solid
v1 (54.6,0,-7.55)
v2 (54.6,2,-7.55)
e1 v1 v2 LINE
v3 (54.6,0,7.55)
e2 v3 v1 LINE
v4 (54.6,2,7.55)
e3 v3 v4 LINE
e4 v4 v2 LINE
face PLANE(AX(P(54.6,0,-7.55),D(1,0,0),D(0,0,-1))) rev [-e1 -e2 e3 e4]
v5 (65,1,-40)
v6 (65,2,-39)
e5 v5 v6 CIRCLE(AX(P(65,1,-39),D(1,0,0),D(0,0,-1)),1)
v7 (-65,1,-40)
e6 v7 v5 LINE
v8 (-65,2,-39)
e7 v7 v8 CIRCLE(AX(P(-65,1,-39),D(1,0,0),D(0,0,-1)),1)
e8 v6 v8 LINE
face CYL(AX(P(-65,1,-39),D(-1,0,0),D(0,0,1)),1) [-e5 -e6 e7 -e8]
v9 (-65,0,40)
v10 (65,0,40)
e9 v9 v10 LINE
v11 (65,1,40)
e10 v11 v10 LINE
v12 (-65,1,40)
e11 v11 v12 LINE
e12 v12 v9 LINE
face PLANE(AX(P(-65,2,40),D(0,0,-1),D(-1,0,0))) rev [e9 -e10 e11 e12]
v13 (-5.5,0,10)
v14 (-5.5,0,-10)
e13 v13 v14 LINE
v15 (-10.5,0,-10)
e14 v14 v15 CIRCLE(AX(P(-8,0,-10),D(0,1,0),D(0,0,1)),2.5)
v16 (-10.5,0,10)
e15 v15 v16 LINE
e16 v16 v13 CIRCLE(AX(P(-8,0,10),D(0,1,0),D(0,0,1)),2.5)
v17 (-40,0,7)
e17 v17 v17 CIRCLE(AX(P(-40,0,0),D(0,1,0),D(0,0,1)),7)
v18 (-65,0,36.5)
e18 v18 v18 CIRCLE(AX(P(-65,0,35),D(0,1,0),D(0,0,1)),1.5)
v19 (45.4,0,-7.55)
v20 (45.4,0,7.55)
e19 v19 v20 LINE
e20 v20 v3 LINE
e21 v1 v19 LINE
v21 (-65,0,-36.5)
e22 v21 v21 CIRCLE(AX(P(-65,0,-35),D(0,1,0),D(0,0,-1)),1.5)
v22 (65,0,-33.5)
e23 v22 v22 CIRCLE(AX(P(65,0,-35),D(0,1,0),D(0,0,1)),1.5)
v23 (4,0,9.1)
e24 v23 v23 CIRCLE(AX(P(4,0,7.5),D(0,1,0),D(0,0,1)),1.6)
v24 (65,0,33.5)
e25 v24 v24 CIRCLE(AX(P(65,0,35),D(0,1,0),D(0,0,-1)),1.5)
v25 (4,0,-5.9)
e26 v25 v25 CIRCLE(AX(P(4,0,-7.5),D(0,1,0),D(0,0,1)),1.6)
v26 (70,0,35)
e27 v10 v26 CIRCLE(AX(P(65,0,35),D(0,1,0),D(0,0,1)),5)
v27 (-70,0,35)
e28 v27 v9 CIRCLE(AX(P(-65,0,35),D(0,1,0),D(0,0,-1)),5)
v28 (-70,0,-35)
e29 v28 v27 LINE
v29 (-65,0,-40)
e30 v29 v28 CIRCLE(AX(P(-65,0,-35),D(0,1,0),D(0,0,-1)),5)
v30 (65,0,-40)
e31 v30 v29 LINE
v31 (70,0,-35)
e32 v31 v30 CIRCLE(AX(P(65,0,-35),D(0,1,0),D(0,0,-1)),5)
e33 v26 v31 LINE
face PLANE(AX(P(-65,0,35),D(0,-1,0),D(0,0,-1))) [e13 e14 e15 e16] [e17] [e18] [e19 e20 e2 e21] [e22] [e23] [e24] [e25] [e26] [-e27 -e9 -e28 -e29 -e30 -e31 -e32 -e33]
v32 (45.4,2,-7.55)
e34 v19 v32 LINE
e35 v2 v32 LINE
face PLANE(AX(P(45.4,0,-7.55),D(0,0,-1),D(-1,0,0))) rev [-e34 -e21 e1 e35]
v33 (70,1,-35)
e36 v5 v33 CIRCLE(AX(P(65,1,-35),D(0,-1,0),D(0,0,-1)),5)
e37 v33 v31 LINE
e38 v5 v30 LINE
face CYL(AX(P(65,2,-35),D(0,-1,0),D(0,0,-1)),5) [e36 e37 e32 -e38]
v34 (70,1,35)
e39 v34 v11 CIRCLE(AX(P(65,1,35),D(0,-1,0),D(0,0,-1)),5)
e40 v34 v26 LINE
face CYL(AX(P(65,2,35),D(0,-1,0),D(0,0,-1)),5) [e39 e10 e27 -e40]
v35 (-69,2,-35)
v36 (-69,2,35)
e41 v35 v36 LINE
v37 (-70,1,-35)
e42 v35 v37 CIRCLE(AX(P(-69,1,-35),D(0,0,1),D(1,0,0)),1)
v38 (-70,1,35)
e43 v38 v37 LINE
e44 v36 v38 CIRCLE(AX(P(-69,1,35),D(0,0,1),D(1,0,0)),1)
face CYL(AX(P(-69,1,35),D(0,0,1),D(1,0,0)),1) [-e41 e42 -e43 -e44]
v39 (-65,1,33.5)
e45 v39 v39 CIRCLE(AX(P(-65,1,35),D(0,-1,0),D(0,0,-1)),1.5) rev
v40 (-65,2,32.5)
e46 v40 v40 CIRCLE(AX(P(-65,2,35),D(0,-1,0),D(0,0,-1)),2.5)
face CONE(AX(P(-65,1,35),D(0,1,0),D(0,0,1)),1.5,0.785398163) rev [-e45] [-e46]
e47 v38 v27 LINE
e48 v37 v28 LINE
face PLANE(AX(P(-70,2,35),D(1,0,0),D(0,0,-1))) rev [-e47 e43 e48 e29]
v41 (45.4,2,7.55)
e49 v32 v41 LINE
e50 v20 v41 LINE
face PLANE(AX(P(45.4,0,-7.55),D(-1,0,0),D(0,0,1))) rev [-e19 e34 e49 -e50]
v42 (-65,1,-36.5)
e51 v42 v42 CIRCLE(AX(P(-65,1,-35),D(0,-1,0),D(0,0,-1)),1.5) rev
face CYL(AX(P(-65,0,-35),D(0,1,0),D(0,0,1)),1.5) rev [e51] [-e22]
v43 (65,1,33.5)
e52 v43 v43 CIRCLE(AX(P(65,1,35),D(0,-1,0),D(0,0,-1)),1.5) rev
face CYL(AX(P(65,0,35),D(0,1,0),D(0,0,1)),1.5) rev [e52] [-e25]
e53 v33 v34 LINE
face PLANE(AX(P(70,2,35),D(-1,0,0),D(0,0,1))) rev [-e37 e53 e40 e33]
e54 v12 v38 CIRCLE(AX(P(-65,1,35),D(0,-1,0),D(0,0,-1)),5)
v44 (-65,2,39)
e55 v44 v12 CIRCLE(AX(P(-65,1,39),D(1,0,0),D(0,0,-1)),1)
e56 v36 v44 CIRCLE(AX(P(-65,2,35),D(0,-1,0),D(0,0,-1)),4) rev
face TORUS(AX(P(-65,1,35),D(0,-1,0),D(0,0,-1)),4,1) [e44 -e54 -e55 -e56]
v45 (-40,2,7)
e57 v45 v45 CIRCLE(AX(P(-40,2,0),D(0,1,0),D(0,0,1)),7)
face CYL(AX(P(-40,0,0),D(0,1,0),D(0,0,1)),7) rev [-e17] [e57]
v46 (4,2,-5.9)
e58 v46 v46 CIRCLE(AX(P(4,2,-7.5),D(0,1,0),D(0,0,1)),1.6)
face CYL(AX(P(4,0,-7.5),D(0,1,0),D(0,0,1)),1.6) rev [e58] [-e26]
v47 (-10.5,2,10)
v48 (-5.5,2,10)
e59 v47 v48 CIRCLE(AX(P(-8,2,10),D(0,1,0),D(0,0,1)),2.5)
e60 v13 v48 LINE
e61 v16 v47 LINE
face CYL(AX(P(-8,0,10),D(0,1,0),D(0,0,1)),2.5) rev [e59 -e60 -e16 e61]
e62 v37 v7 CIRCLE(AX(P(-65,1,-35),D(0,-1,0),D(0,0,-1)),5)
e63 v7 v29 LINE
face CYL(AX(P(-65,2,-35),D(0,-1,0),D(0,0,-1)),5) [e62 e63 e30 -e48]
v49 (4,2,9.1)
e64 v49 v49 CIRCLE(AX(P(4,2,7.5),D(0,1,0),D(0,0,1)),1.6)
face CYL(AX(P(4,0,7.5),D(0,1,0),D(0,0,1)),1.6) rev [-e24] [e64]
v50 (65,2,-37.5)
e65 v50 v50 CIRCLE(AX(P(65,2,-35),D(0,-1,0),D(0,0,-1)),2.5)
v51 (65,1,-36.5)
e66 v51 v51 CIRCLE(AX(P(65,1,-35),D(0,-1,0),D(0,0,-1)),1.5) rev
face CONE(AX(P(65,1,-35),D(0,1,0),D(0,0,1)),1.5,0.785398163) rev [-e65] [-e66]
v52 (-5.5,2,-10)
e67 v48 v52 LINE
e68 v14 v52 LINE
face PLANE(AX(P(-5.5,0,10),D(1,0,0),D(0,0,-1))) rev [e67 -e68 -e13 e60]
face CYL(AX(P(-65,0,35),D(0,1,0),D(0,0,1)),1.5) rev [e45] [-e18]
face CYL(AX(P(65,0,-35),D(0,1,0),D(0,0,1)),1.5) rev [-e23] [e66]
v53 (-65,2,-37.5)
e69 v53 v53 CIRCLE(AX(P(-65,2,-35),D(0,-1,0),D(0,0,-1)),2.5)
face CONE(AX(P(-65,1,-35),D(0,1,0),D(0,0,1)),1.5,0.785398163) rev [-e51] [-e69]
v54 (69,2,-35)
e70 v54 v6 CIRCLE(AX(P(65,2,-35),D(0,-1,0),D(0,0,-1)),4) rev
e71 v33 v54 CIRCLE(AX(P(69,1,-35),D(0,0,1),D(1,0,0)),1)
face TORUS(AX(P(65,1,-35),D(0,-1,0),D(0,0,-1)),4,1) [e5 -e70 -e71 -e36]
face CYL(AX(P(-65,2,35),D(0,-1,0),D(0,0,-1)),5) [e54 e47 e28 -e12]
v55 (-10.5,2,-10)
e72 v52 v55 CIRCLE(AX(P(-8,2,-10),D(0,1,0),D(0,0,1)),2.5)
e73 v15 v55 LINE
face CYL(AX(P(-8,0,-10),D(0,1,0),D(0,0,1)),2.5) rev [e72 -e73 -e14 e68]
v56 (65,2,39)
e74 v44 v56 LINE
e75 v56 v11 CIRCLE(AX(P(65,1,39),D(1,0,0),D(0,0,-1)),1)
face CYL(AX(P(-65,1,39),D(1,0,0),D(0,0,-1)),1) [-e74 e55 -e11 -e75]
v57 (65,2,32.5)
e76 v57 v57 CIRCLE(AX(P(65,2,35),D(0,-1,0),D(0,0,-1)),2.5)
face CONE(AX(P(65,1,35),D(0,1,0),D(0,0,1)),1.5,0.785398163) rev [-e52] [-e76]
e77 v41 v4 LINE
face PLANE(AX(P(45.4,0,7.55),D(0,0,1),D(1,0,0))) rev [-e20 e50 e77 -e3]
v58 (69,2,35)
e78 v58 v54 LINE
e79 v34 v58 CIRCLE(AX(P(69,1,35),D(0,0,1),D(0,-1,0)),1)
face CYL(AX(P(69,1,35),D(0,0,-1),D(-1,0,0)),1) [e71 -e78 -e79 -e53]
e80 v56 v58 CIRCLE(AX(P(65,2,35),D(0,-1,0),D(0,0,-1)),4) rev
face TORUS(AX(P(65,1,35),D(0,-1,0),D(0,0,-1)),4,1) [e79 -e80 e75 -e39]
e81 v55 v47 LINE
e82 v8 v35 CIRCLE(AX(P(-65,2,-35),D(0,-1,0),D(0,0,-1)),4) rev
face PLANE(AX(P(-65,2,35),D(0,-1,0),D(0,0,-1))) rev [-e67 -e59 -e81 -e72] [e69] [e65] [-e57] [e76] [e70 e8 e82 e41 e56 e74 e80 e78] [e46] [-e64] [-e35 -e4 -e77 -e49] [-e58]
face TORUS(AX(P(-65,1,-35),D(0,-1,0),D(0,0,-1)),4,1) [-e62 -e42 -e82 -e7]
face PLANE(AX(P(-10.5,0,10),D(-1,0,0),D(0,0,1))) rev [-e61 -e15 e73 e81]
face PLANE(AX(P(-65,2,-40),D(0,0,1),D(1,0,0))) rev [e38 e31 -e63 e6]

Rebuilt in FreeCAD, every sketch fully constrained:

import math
import FreeCAD as App
import Part
import Sketcher
from FreeCAD import Vector


def edges_at(feature, points):
    """Names of the edges that pass closest to the given points."""
    edges = feature.Shape.Edges
    near = lambda p: min(range(len(edges)), key=lambda i: edges[i].distToShape(Part.Vertex(*p))[0])
    return sorted({f"Edge{near(p) + 1}" for p in points})

doc = App.newDocument("Part")
body = doc.addObject("PartDesign::Body", "Body")

sketch1 = doc.addObject("Sketcher::SketchObject", "Sketch")
body.addObject(sketch1)
sketch1.AttachmentSupport = (doc.XZ_Plane, [""])
sketch1.MapMode = "FlatFace"
sketch1.addGeometry(Part.LineSegment(Vector(-65, 40, 0), Vector(65, 40, 0)), False)
sketch1.addGeometry(Part.ArcOfCircle(Part.Circle(Vector(65, 35, 0), Vector(0, 0, 1), 5), math.radians(0), math.radians(90)), False)
sketch1.addGeometry(Part.LineSegment(Vector(70, 35, 0), Vector(70, -35, 0)), False)
sketch1.addGeometry(Part.ArcOfCircle(Part.Circle(Vector(65, -35, 0), Vector(0, 0, 1), 5), math.radians(-90), math.radians(0)), False)
sketch1.addGeometry(Part.LineSegment(Vector(65, -40, 0), Vector(-65, -40, 0)), False)
sketch1.addGeometry(Part.ArcOfCircle(Part.Circle(Vector(-65, -35, 0), Vector(0, 0, 1), 5), math.radians(180), math.radians(270)), False)
sketch1.addGeometry(Part.LineSegment(Vector(-70, -35, 0), Vector(-70, 35, 0)), False)
sketch1.addGeometry(Part.ArcOfCircle(Part.Circle(Vector(-65, 35, 0), Vector(0, 0, 1), 5), math.radians(90), math.radians(180)), False)
sketch1.addConstraint(Sketcher.Constraint("Tangent", 0, 2, 1, 2))
sketch1.addConstraint(Sketcher.Constraint("Tangent", 1, 1, 2, 1))
sketch1.addConstraint(Sketcher.Constraint("Tangent", 2, 2, 3, 2))
sketch1.addConstraint(Sketcher.Constraint("Tangent", 3, 1, 4, 1))
sketch1.addConstraint(Sketcher.Constraint("Tangent", 4, 2, 5, 2))
sketch1.addConstraint(Sketcher.Constraint("Tangent", 5, 1, 6, 1))
sketch1.addConstraint(Sketcher.Constraint("Tangent", 6, 2, 7, 2))
sketch1.addConstraint(Sketcher.Constraint("Tangent", 7, 1, 0, 1))
sketch1.addConstraint(Sketcher.Constraint("Horizontal", 0))
sketch1.addConstraint(Sketcher.Constraint("Vertical", 2))
sketch1.addConstraint(Sketcher.Constraint("Horizontal", 4))
sketch1.addConstraint(Sketcher.Constraint("Vertical", 6))
sketch1.addConstraint(Sketcher.Constraint("Equal", 1, 3))
sketch1.addConstraint(Sketcher.Constraint("Equal", 3, 5))
sketch1.addConstraint(Sketcher.Constraint("Equal", 5, 7))
sketch1.addConstraint(Sketcher.Constraint("Symmetric", 1, 3, 5, 3, -1, 1))
sketch1.addConstraint(Sketcher.Constraint("Radius", 1, 5.0))
sketch1.addConstraint(Sketcher.Constraint("DistanceX", 0, 1, 0, 2, 130.0))
sketch1.addConstraint(Sketcher.Constraint("DistanceY", 2, 2, 2, 1, 70.0))
pad1 = doc.addObject("PartDesign::Pad", "Pad")
body.addObject(pad1)
pad1.Profile = sketch1
pad1.Length = 2
pad1.Reversed = True

sketch2 = doc.addObject("Sketcher::SketchObject", "Sketch001")
body.addObject(sketch2)
sketch2.AttachmentSupport = (doc.XZ_Plane, [""])
sketch2.MapMode = "FlatFace"
sketch2.AttachmentOffset = App.Placement(Vector(0, 0, -2), App.Rotation())
sketch2.addGeometry(Part.Circle(Vector(65, -35, 0), Vector(0, 0, 1), 1.5), False)
sketch2.addGeometry(Part.Circle(Vector(65, 35, 0), Vector(0, 0, 1), 1.5), False)
sketch2.addGeometry(Part.Circle(Vector(-65, 35, 0), Vector(0, 0, 1), 1.5), False)
sketch2.addGeometry(Part.Circle(Vector(-65, -35, 0), Vector(0, 0, 1), 1.5), False)
sketch2.addConstraint(Sketcher.Constraint("Equal", 0, 1))
sketch2.addConstraint(Sketcher.Constraint("Equal", 1, 2))
sketch2.addConstraint(Sketcher.Constraint("Equal", 2, 3))
sketch2.addConstraint(Sketcher.Constraint("Symmetric", 0, 3, 2, 3, -1, 1))
sketch2.addConstraint(Sketcher.Constraint("Symmetric", 1, 3, 3, 3, -1, 1))
sketch2.addConstraint(Sketcher.Constraint("Symmetric", 1, 3, 2, 3, -2))
sketch2.addConstraint(Sketcher.Constraint("Diameter", 0, 3.0))
sketch2.addConstraint(Sketcher.Constraint("DistanceX", -1, 1, 0, 3, 65.0))
sketch2.addConstraint(Sketcher.Constraint("DistanceY", 0, 3, -1, 1, 35.0))
pocket1 = doc.addObject("PartDesign::Pocket", "Pocket")
body.addObject(pocket1)
pocket1.Profile = sketch2
pocket1.Length = 2
pocket1.Reversed = True
doc.recompute()

chamfer = doc.addObject("PartDesign::Chamfer", "Chamfer")
body.addObject(chamfer)
chamfer.Base = (pocket1, edges_at(pocket1, [
    (-65, 2, -33.5),
    (-65, 2, 33.5),
    (65, 2, 36.5),
    (65, 2, -36.5),
]))
chamfer.Size = 1

sketch3 = doc.addObject("Sketcher::SketchObject", "Sketch002")
body.addObject(sketch3)
sketch3.AttachmentSupport = (doc.XZ_Plane, [""])
sketch3.MapMode = "FlatFace"
sketch3.AttachmentOffset = App.Placement(Vector(0, 0, -2), App.Rotation())
sketch3.addGeometry(Part.Circle(Vector(4, -7.5, 0), Vector(0, 0, 1), 1.6), False)
sketch3.addGeometry(Part.Circle(Vector(4, 7.5, 0), Vector(0, 0, 1), 1.6), False)
sketch3.addGeometry(Part.LineSegment(Vector(-10.5, -10, 0), Vector(-10.5, 10, 0)), False)
sketch3.addGeometry(Part.ArcOfCircle(Part.Circle(Vector(-8, 10, 0), Vector(0, 0, 1), 2.5), math.radians(0), math.radians(180)), False)
sketch3.addGeometry(Part.LineSegment(Vector(-5.5, 10, 0), Vector(-5.5, -10, 0)), False)
sketch3.addGeometry(Part.ArcOfCircle(Part.Circle(Vector(-8, -10, 0), Vector(0, 0, 1), 2.5), math.radians(180), math.radians(360)), False)
sketch3.addConstraint(Sketcher.Constraint("Tangent", 2, 2, 3, 2))
sketch3.addConstraint(Sketcher.Constraint("Tangent", 3, 1, 4, 1))
sketch3.addConstraint(Sketcher.Constraint("Tangent", 4, 2, 5, 2))
sketch3.addConstraint(Sketcher.Constraint("Tangent", 5, 1, 2, 1))
sketch3.addConstraint(Sketcher.Constraint("Vertical", 2))
sketch3.addConstraint(Sketcher.Constraint("Vertical", 4))
sketch3.addConstraint(Sketcher.Constraint("Equal", 0, 1))
sketch3.addConstraint(Sketcher.Constraint("Symmetric", 0, 3, 1, 3, -1))
sketch3.addConstraint(Sketcher.Constraint("Diameter", 0, 3.2))
sketch3.addConstraint(Sketcher.Constraint("Radius", 3, 2.5))
sketch3.addConstraint(Sketcher.Constraint("DistanceY", 2, 1, 2, 2, 20.0))
sketch3.addConstraint(Sketcher.Constraint("DistanceX", -1, 1, 0, 3, 4.0))
sketch3.addConstraint(Sketcher.Constraint("DistanceX", 3, 3, -1, 1, 8.0))
sketch3.addConstraint(Sketcher.Constraint("DistanceY", -1, 1, 3, 3, 10.0))
sketch3.addConstraint(Sketcher.Constraint("DistanceY", 0, 3, 1, 3, 15.0))
pocket2 = doc.addObject("PartDesign::Pocket", "Pocket001")
body.addObject(pocket2)
pocket2.Profile = sketch3
pocket2.Length = 2
pocket2.Reversed = True

sketch4 = doc.addObject("Sketcher::SketchObject", "Sketch003")
body.addObject(sketch4)
sketch4.AttachmentSupport = (doc.XZ_Plane, [""])
sketch4.MapMode = "FlatFace"
sketch4.AttachmentOffset = App.Placement(Vector(0, 0, -2), App.Rotation())
sketch4.addGeometry(Part.Circle(Vector(-40, 0, 0), Vector(0, 0, 1), 7), False)
sketch4.addGeometry(Part.LineSegment(Vector(45.4, -7.55, 0), Vector(45.4, 7.55, 0)), False)
sketch4.addGeometry(Part.LineSegment(Vector(45.4, 7.55, 0), Vector(54.6, 7.55, 0)), False)
sketch4.addGeometry(Part.LineSegment(Vector(54.6, 7.55, 0), Vector(54.6, -7.55, 0)), False)
sketch4.addGeometry(Part.LineSegment(Vector(54.6, -7.55, 0), Vector(45.4, -7.55, 0)), False)
sketch4.addConstraint(Sketcher.Constraint("Coincident", 1, 2, 2, 1))
sketch4.addConstraint(Sketcher.Constraint("Coincident", 2, 2, 3, 1))
sketch4.addConstraint(Sketcher.Constraint("Coincident", 3, 2, 4, 1))
sketch4.addConstraint(Sketcher.Constraint("Coincident", 4, 2, 1, 1))
sketch4.addConstraint(Sketcher.Constraint("Vertical", 1))
sketch4.addConstraint(Sketcher.Constraint("Horizontal", 2))
sketch4.addConstraint(Sketcher.Constraint("Vertical", 3))
sketch4.addConstraint(Sketcher.Constraint("Horizontal", 4))
sketch4.addConstraint(Sketcher.Constraint("PointOnObject", 0, 3, -1))
sketch4.addConstraint(Sketcher.Constraint("Diameter", 0, 14.0))
sketch4.addConstraint(Sketcher.Constraint("DistanceX", 2, 1, 2, 2, 9.2))
sketch4.addConstraint(Sketcher.Constraint("DistanceY", 1, 1, 1, 2, 15.1))
sketch4.addConstraint(Sketcher.Constraint("DistanceX", 0, 3, -1, 1, 40.0))
sketch4.addConstraint(Sketcher.Constraint("DistanceX", -1, 1, 1, 2, 45.4))
sketch4.addConstraint(Sketcher.Constraint("DistanceY", -1, 1, 1, 2, 7.55))
pocket3 = doc.addObject("PartDesign::Pocket", "Pocket002")
body.addObject(pocket3)
pocket3.Profile = sketch4
pocket3.Length = 2
pocket3.Reversed = True
doc.recompute()

fillet = doc.addObject("PartDesign::Fillet", "Fillet")
body.addObject(fillet)
fillet.Base = (pocket3, edges_at(pocket3, [
    (68.536, 2, 38.536),
    (70, 2, 0),
    (68.536, 2, -38.536),
    (0, 2, -40),
    (-68.536, 2, -38.536),
    (-70, 2, 0),
    (-68.536, 2, 38.536),
    (0, 2, 40),
]))
fillet.Radius = 1

doc.recompute()
